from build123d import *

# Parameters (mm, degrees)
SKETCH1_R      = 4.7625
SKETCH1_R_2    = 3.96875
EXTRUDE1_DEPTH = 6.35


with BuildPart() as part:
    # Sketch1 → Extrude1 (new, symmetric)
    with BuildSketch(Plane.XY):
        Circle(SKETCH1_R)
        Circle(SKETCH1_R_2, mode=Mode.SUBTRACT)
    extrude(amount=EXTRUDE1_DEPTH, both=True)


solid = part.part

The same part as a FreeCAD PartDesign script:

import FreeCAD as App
import Part
import Sketcher
Q = App.Units.Quantity

doc = App.newDocument("Part")
body = doc.addObject("PartDesign::Body", "Body")

sketch1 = body.newObject("Sketcher::SketchObject", "Sketch")
sketch1.AttachmentSupport = (doc.getObject("XY_Plane"), [""])
sketch1.MapMode = "FlatFace"
sketch1.addGeometry([
    Part.Circle(App.Vector(0, 0, 0), App.Vector(0, 0, 1), 4.7625),
    Part.Circle(App.Vector(0, 0, 0), App.Vector(0, 0, 1), 3.96875),
], False)
sketch1.addConstraint([
    Sketcher.Constraint("Coincident", 0, 3, -1, 1),
    Sketcher.Constraint("Coincident", 1, 3, -1, 1),
    Sketcher.Constraint("Diameter", 0, Q("0.375 in")),
    Sketcher.Constraint("Diameter", 1, Q("0.3125 in")),
])
pad1 = body.newObject("PartDesign::Pad", "Pad")
pad1.Profile = sketch1
pad1.Length = Q("0.5 in")
pad1.Midplane = True

doc.recompute()
